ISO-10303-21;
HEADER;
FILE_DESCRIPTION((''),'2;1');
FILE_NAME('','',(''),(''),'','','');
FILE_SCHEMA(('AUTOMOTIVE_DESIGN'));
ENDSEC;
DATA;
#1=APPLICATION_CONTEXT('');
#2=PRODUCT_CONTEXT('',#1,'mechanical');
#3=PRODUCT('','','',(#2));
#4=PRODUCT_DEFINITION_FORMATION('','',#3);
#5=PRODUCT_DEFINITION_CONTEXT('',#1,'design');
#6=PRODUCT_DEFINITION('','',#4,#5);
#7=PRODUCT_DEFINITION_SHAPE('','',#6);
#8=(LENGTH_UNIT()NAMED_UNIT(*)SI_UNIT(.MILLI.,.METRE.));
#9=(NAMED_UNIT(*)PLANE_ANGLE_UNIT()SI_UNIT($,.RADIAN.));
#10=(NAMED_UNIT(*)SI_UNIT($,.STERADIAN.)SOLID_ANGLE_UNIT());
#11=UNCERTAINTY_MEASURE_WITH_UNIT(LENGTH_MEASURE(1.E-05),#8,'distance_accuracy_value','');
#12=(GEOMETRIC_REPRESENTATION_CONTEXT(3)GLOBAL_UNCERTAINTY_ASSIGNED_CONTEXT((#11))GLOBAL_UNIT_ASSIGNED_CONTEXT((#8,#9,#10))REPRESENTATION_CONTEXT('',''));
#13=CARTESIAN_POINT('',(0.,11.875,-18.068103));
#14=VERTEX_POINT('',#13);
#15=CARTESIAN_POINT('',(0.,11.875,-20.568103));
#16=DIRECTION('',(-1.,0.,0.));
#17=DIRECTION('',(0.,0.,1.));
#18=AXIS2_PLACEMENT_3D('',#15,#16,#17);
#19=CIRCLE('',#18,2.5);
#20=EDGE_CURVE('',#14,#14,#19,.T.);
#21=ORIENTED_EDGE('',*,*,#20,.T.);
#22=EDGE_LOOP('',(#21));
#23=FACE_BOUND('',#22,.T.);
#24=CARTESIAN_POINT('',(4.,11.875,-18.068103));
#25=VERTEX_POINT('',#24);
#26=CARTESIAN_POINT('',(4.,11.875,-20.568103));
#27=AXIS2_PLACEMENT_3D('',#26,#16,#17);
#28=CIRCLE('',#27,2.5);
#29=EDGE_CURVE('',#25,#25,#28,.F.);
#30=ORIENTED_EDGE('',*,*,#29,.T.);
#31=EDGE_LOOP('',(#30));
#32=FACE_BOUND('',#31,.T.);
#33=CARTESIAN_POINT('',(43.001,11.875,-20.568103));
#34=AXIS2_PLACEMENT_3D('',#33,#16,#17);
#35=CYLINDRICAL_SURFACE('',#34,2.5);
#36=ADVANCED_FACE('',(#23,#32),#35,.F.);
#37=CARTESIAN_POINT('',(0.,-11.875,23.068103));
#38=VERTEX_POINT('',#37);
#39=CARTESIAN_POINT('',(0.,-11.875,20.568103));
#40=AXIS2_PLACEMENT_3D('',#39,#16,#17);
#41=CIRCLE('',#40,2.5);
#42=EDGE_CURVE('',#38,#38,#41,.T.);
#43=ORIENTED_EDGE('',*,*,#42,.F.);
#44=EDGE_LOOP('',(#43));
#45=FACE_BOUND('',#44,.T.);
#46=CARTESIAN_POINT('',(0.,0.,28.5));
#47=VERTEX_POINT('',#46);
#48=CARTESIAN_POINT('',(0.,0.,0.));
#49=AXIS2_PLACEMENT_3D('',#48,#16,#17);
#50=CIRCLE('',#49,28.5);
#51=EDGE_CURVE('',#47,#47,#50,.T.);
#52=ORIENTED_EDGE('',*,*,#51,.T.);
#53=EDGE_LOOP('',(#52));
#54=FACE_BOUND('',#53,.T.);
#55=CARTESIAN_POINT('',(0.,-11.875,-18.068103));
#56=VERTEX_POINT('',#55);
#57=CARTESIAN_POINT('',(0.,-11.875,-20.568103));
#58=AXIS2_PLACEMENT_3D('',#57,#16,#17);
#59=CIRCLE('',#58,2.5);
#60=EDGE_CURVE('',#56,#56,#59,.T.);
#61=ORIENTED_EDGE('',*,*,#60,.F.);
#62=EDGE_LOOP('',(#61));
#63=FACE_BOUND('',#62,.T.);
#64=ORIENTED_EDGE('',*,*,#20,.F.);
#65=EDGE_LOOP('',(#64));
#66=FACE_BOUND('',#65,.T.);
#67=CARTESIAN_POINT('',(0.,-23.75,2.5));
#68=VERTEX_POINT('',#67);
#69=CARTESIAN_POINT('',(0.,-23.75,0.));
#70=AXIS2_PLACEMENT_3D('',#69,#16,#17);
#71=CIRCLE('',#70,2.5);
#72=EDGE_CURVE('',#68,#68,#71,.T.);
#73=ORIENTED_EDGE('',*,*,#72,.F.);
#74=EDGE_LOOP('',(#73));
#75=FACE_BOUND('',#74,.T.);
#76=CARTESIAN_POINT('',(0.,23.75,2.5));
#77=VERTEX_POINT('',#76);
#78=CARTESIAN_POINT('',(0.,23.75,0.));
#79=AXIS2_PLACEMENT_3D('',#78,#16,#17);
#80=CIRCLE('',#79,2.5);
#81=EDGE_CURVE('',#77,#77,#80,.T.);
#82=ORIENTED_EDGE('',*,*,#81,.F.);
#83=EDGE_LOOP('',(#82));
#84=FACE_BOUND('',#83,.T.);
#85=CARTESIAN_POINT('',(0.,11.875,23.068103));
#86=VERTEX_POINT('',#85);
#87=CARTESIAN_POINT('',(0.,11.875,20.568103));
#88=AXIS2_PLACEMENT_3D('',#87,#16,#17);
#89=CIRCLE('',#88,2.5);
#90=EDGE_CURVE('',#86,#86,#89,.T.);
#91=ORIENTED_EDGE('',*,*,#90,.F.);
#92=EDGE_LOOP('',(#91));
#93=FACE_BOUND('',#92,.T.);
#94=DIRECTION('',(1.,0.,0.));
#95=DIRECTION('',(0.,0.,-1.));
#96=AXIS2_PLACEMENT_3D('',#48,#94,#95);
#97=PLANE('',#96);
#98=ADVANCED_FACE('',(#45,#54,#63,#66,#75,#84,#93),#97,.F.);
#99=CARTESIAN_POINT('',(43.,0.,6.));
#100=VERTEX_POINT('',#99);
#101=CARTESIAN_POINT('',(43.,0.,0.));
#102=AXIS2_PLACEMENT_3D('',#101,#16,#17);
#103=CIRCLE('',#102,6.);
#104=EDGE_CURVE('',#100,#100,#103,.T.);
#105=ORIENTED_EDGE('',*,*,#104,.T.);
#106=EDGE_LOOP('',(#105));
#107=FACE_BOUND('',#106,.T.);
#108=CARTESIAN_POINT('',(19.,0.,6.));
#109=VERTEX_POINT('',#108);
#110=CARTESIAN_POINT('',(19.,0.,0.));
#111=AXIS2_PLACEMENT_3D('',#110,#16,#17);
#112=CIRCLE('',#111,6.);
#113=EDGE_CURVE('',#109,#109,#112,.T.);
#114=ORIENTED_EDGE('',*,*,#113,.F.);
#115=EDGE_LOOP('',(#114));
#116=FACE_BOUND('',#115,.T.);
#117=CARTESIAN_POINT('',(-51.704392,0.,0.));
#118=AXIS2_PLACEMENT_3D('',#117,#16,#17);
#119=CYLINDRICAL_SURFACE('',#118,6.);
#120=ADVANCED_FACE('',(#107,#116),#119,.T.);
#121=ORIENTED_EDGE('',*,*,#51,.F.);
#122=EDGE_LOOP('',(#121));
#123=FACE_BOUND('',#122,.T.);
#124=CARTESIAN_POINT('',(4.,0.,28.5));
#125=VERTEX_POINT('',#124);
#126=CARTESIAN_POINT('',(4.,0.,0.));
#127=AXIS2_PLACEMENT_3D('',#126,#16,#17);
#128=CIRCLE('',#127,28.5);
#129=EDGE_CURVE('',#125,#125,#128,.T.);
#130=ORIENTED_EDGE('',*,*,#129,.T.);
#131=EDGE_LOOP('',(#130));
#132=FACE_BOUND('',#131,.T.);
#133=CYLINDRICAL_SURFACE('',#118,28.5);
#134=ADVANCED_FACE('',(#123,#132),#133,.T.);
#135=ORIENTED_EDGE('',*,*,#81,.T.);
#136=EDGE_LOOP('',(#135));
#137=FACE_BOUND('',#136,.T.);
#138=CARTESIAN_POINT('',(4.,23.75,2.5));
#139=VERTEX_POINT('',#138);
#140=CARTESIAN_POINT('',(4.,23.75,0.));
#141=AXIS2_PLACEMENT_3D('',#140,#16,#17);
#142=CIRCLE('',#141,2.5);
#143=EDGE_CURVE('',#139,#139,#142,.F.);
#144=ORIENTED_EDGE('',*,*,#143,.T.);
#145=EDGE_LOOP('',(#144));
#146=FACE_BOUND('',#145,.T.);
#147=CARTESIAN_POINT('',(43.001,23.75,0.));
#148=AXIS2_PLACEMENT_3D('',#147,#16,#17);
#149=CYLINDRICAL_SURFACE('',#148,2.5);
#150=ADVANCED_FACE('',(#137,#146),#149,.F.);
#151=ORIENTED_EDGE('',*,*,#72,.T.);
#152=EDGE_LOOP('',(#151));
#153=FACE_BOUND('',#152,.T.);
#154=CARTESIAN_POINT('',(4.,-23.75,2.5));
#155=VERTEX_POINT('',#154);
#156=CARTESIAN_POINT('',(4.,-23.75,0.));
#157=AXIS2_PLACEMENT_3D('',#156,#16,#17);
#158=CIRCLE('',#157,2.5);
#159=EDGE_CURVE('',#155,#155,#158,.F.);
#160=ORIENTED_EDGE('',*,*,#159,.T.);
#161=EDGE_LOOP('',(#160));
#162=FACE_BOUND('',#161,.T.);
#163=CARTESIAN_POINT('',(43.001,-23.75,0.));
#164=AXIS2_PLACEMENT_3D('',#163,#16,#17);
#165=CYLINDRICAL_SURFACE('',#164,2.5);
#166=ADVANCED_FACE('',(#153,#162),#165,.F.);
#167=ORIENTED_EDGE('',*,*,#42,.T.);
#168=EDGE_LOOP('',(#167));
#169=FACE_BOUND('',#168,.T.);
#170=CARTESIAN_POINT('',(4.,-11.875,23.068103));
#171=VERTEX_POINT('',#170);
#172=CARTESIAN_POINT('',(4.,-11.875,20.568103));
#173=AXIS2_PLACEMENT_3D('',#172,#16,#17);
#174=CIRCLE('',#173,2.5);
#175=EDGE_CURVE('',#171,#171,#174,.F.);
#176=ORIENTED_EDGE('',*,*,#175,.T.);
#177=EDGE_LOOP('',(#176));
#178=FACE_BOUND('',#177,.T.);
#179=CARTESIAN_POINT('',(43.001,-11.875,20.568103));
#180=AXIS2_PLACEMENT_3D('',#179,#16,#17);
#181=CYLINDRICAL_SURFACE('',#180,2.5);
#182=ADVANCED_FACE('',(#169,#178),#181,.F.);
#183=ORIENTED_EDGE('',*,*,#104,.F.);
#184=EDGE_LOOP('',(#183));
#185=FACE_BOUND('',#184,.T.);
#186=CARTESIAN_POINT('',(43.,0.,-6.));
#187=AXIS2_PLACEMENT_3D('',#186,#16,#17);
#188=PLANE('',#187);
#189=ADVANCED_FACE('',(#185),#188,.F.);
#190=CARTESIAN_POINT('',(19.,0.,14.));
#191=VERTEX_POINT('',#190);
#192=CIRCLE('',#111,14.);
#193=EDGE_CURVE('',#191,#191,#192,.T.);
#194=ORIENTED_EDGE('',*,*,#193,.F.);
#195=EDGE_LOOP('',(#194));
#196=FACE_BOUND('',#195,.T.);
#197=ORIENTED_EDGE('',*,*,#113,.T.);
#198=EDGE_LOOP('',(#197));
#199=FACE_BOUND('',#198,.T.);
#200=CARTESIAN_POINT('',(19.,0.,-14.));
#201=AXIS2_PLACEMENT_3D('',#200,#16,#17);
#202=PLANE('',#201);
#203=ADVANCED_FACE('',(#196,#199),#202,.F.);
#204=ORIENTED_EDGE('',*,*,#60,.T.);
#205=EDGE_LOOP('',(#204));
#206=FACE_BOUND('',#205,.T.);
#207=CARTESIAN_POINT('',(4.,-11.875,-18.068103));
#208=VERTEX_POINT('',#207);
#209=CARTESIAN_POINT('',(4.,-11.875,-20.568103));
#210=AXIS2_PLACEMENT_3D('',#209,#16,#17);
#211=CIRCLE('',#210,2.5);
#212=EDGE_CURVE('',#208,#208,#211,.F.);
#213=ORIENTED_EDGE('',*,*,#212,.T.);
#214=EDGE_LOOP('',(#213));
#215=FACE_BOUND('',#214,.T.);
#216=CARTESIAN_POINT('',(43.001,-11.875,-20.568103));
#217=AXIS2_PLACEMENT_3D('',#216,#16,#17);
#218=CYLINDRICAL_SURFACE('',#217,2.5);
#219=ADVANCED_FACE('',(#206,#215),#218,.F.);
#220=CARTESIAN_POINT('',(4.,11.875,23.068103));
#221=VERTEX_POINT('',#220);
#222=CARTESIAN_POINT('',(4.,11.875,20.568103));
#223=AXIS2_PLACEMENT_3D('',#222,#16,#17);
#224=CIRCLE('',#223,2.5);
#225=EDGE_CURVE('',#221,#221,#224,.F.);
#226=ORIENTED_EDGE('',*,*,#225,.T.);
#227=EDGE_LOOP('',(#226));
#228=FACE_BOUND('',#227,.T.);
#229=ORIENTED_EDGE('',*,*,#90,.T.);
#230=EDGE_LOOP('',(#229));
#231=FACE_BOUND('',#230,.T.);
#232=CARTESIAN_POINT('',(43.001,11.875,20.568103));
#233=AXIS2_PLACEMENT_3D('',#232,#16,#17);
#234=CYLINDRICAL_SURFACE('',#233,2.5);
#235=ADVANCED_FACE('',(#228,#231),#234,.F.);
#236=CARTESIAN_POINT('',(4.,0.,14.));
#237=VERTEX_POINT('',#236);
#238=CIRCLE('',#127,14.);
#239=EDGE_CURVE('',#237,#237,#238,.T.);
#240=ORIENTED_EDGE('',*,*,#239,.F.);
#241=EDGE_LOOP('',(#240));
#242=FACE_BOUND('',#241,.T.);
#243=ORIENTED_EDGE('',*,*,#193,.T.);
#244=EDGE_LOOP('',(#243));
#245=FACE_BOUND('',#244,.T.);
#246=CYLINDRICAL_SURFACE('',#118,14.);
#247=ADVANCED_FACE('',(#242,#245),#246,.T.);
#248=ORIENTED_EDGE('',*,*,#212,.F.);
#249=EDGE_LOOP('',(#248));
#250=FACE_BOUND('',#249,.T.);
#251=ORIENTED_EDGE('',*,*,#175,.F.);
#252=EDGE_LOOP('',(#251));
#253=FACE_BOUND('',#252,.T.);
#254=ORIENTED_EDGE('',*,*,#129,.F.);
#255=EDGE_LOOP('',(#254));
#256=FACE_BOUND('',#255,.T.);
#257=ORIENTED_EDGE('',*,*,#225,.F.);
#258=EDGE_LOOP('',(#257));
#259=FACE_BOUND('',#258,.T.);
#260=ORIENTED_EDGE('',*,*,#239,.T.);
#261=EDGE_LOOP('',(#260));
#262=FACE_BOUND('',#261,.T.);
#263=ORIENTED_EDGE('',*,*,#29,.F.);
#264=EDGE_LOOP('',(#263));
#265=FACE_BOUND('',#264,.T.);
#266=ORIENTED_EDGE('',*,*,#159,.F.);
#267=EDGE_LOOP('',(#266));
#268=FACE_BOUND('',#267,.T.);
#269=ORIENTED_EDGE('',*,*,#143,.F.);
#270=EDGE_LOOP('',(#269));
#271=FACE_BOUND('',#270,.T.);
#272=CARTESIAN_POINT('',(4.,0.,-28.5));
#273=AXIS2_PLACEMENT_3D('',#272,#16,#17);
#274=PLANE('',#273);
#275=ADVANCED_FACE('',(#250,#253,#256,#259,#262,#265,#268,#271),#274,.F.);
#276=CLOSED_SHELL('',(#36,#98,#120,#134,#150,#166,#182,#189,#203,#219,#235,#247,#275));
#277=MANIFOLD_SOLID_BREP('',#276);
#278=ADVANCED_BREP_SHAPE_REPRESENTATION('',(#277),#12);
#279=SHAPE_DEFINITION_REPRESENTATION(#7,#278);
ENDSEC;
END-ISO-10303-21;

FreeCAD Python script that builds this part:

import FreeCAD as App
import Part
import Sketcher

doc = App.newDocument("Part")
params = doc.addObject("Spreadsheet::Sheet", "Params")
for row, (alias, value) in enumerate([
    ("sketch1_width", "43 mm"),
    ("sketch1_width2", "24 mm"),
    ("sketch1_width3", "15 mm"),
    ("sketch1_height", "6 mm"),
    ("sketch1_height2", "8 mm"),
    ("revolution_angle", "360 deg"),
    ("sketch2_diameter", "5 mm"),
    ("sketch3_diameter", "5 mm"),
    ("sketch4_diameter", "5 mm"),
    ("sketch5_diameter", "5 mm"),
    ("sketch6_diameter", "5 mm"),
    ("sketch7_diameter", "5 mm"),
], start=1):
    params.set(f"A{row}", alias)
    params.set(f"B{row}", "=" + value)
    params.setAlias(f"B{row}", alias)

body = doc.addObject("PartDesign::Body", "Body")

sketch1 = body.newObject("Sketcher::SketchObject", "Sketch")
sketch1.AttachmentSupport = (doc.getObject("XZ_Plane"), [""])
sketch1.MapMode = "FlatFace"
sketch1.addGeometry(Part.LineSegment(App.Vector(0, -28.5, 0), App.Vector(0, 0, 0)), False)
sketch1.addGeometry(Part.LineSegment(App.Vector(0, 0, 0), App.Vector(43, 0, 0)), False)
sketch1.addGeometry(Part.LineSegment(App.Vector(43, 0, 0), App.Vector(43, -6, 0)), False)
sketch1.addGeometry(Part.LineSegment(App.Vector(43, -6, 0), App.Vector(19, -6, 0)), False)
sketch1.addGeometry(Part.LineSegment(App.Vector(19, -6, 0), App.Vector(19, -14, 0)), False)
sketch1.addGeometry(Part.LineSegment(App.Vector(19, -14, 0), App.Vector(4, -14, 0)), False)
sketch1.addGeometry(Part.LineSegment(App.Vector(4, -14, 0), App.Vector(4, -28.5, 0)), False)
sketch1.addGeometry(Part.LineSegment(App.Vector(4, -28.5, 0), App.Vector(0, -28.5, 0)), False)
sketch1.addConstraint(Sketcher.Constraint("Coincident", 0, 2, 1, 1))
sketch1.addConstraint(Sketcher.Constraint("Coincident", 1, 2, 2, 1))
sketch1.addConstraint(Sketcher.Constraint("Coincident", 2, 2, 3, 1))
sketch1.addConstraint(Sketcher.Constraint("Coincident", 3, 2, 4, 1))
sketch1.addConstraint(Sketcher.Constraint("Coincident", 4, 2, 5, 1))
sketch1.addConstraint(Sketcher.Constraint("Coincident", 5, 2, 6, 1))
sketch1.addConstraint(Sketcher.Constraint("Coincident", 6, 2, 7, 1))
sketch1.addConstraint(Sketcher.Constraint("Coincident", 7, 2, 0, 1))
sketch1.addConstraint(Sketcher.Constraint("Vertical", 0))
sketch1.addConstraint(Sketcher.Constraint("Horizontal", 1))
sketch1.addConstraint(Sketcher.Constraint("Vertical", 2))
sketch1.addConstraint(Sketcher.Constraint("Horizontal", 3))
sketch1.addConstraint(Sketcher.Constraint("Vertical", 4))
sketch1.addConstraint(Sketcher.Constraint("Horizontal", 5))
sketch1.addConstraint(Sketcher.Constraint("Vertical", 6))
sketch1.addConstraint(Sketcher.Constraint("Horizontal", 7))
sketch1.addConstraint(Sketcher.Constraint("Coincident", 0, 2, -1, 1))
sketch1.addConstraint(Sketcher.Constraint("DistanceX", 1, 1, 1, 2, 43.0))
sketch1.addConstraint(Sketcher.Constraint("DistanceX", 3, 2, 3, 1, 24.0))
sketch1.addConstraint(Sketcher.Constraint("DistanceX", 5, 2, 5, 1, 15.0))
sketch1.addConstraint(Sketcher.Constraint("DistanceY", 2, 2, 2, 1, 6.0))
sketch1.addConstraint(Sketcher.Constraint("DistanceY", 4, 2, 4, 1, 8.0))
sketch1.addConstraint(Sketcher.Constraint("DistanceY", 0, 1, 0, 2, 28.5))
sketch1.setExpression("Constraints[17]", "Params.sketch1_width")
sketch1.setExpression("Constraints[18]", "Params.sketch1_width2")
sketch1.setExpression("Constraints[19]", "Params.sketch1_width3")
sketch1.setExpression("Constraints[20]", "Params.sketch1_height")
sketch1.setExpression("Constraints[21]", "Params.sketch1_height2")
revolution = body.newObject("PartDesign::Revolution", "Revolution")
revolution.Profile = sketch1
revolution.ReferenceAxis = (sketch1, ["H_Axis"])
revolution.setExpression("Angle", "Params.revolution_angle")

sketch2 = body.newObject("Sketcher::SketchObject", "Sketch001")
sketch2.AttachmentSupport = (doc.getObject("YZ_Plane"), [""])
sketch2.MapMode = "FlatFace"
sketch2.addGeometry(Part.Circle(App.Vector(23.8, 0, 0), App.Vector(0, 0, 1), 2.5), False)
sketch2.addConstraint(Sketcher.Constraint("PointOnObject", 0, 3, -1))
sketch2.addConstraint(Sketcher.Constraint("Diameter", 0, 5.0))
sketch2.addConstraint(Sketcher.Constraint("DistanceX", -1, 1, 0, 3, 23.75))
sketch2.setExpression("Constraints[1]", "Params.sketch2_diameter")
pocket1 = body.newObject("PartDesign::Pocket", "Pocket")
pocket1.Profile = sketch2
pocket1.Type = "UpToFirst"
pocket1.Reversed = True

sketch3 = body.newObject("Sketcher::SketchObject", "Sketch002")
sketch3.AttachmentSupport = (doc.getObject("YZ_Plane"), [""])
sketch3.MapMode = "FlatFace"
sketch3.addGeometry(Part.Circle(App.Vector(11.9, 20.6, 0), App.Vector(0, 0, 1), 2.5), False)
sketch3.addConstraint(Sketcher.Constraint("Diameter", 0, 5.0))
sketch3.addConstraint(Sketcher.Constraint("DistanceX", -1, 1, 0, 3, 11.875))
sketch3.addConstraint(Sketcher.Constraint("DistanceY", -1, 1, 0, 3, 20.568103))
sketch3.setExpression("Constraints[0]", "Params.sketch3_diameter")
pocket2 = body.newObject("PartDesign::Pocket", "Pocket001")
pocket2.Profile = sketch3
pocket2.Type = "UpToFirst"
pocket2.Reversed = True

sketch4 = body.newObject("Sketcher::SketchObject", "Sketch003")
sketch4.AttachmentSupport = (doc.getObject("YZ_Plane"), [""])
sketch4.MapMode = "FlatFace"
sketch4.addGeometry(Part.Circle(App.Vector(-11.9, 20.6, 0), App.Vector(0, 0, 1), 2.5), False)
sketch4.addConstraint(Sketcher.Constraint("Diameter", 0, 5.0))
sketch4.addConstraint(Sketcher.Constraint("DistanceX", 0, 3, -1, 1, 11.875))
sketch4.addConstraint(Sketcher.Constraint("DistanceY", -1, 1, 0, 3, 20.568103))
sketch4.setExpression("Constraints[0]", "Params.sketch4_diameter")
pocket3 = body.newObject("PartDesign::Pocket", "Pocket002")
pocket3.Profile = sketch4
pocket3.Type = "UpToFirst"
pocket3.Reversed = True

sketch5 = body.newObject("Sketcher::SketchObject", "Sketch004")
sketch5.AttachmentSupport = (doc.getObject("YZ_Plane"), [""])
sketch5.MapMode = "FlatFace"
sketch5.addGeometry(Part.Circle(App.Vector(-23.8, 0, 0), App.Vector(0, 0, 1), 2.5), False)
sketch5.addConstraint(Sketcher.Constraint("PointOnObject", 0, 3, -1))
sketch5.addConstraint(Sketcher.Constraint("Diameter", 0, 5.0))
sketch5.addConstraint(Sketcher.Constraint("DistanceX", 0, 3, -1, 1, 23.75))
sketch5.setExpression("Constraints[1]", "Params.sketch5_diameter")
pocket4 = body.newObject("PartDesign::Pocket", "Pocket003")
pocket4.Profile = sketch5
pocket4.Type = "UpToFirst"
pocket4.Reversed = True

sketch6 = body.newObject("Sketcher::SketchObject", "Sketch005")
sketch6.AttachmentSupport = (doc.getObject("YZ_Plane"), [""])
sketch6.MapMode = "FlatFace"
sketch6.addGeometry(Part.Circle(App.Vector(-11.9, -20.6, 0), App.Vector(0, 0, 1), 2.5), False)
sketch6.addConstraint(Sketcher.Constraint("Diameter", 0, 5.0))
sketch6.addConstraint(Sketcher.Constraint("DistanceX", 0, 3, -1, 1, 11.875))
sketch6.addConstraint(Sketcher.Constraint("DistanceY", 0, 3, -1, 1, 20.568103))
sketch6.setExpression("Constraints[0]", "Params.sketch6_diameter")
pocket5 = body.newObject("PartDesign::Pocket", "Pocket004")
pocket5.Profile = sketch6
pocket5.Type = "UpToFirst"
pocket5.Reversed = True

sketch7 = body.newObject("Sketcher::SketchObject", "Sketch006")
sketch7.AttachmentSupport = (doc.getObject("YZ_Plane"), [""])
sketch7.MapMode = "FlatFace"
sketch7.addGeometry(Part.Circle(App.Vector(11.9, -20.6, 0), App.Vector(0, 0, 1), 2.5), False)
sketch7.addConstraint(Sketcher.Constraint("Diameter", 0, 5.0))
sketch7.addConstraint(Sketcher.Constraint("DistanceX", -1, 1, 0, 3, 11.875))
sketch7.addConstraint(Sketcher.Constraint("DistanceY", 0, 3, -1, 1, 20.568103))
sketch7.setExpression("Constraints[0]", "Params.sketch7_diameter")
pocket6 = body.newObject("PartDesign::Pocket", "Pocket005")
pocket6.Profile = sketch7
pocket6.Type = "UpToFirst"
pocket6.Reversed = True

doc.recompute()
